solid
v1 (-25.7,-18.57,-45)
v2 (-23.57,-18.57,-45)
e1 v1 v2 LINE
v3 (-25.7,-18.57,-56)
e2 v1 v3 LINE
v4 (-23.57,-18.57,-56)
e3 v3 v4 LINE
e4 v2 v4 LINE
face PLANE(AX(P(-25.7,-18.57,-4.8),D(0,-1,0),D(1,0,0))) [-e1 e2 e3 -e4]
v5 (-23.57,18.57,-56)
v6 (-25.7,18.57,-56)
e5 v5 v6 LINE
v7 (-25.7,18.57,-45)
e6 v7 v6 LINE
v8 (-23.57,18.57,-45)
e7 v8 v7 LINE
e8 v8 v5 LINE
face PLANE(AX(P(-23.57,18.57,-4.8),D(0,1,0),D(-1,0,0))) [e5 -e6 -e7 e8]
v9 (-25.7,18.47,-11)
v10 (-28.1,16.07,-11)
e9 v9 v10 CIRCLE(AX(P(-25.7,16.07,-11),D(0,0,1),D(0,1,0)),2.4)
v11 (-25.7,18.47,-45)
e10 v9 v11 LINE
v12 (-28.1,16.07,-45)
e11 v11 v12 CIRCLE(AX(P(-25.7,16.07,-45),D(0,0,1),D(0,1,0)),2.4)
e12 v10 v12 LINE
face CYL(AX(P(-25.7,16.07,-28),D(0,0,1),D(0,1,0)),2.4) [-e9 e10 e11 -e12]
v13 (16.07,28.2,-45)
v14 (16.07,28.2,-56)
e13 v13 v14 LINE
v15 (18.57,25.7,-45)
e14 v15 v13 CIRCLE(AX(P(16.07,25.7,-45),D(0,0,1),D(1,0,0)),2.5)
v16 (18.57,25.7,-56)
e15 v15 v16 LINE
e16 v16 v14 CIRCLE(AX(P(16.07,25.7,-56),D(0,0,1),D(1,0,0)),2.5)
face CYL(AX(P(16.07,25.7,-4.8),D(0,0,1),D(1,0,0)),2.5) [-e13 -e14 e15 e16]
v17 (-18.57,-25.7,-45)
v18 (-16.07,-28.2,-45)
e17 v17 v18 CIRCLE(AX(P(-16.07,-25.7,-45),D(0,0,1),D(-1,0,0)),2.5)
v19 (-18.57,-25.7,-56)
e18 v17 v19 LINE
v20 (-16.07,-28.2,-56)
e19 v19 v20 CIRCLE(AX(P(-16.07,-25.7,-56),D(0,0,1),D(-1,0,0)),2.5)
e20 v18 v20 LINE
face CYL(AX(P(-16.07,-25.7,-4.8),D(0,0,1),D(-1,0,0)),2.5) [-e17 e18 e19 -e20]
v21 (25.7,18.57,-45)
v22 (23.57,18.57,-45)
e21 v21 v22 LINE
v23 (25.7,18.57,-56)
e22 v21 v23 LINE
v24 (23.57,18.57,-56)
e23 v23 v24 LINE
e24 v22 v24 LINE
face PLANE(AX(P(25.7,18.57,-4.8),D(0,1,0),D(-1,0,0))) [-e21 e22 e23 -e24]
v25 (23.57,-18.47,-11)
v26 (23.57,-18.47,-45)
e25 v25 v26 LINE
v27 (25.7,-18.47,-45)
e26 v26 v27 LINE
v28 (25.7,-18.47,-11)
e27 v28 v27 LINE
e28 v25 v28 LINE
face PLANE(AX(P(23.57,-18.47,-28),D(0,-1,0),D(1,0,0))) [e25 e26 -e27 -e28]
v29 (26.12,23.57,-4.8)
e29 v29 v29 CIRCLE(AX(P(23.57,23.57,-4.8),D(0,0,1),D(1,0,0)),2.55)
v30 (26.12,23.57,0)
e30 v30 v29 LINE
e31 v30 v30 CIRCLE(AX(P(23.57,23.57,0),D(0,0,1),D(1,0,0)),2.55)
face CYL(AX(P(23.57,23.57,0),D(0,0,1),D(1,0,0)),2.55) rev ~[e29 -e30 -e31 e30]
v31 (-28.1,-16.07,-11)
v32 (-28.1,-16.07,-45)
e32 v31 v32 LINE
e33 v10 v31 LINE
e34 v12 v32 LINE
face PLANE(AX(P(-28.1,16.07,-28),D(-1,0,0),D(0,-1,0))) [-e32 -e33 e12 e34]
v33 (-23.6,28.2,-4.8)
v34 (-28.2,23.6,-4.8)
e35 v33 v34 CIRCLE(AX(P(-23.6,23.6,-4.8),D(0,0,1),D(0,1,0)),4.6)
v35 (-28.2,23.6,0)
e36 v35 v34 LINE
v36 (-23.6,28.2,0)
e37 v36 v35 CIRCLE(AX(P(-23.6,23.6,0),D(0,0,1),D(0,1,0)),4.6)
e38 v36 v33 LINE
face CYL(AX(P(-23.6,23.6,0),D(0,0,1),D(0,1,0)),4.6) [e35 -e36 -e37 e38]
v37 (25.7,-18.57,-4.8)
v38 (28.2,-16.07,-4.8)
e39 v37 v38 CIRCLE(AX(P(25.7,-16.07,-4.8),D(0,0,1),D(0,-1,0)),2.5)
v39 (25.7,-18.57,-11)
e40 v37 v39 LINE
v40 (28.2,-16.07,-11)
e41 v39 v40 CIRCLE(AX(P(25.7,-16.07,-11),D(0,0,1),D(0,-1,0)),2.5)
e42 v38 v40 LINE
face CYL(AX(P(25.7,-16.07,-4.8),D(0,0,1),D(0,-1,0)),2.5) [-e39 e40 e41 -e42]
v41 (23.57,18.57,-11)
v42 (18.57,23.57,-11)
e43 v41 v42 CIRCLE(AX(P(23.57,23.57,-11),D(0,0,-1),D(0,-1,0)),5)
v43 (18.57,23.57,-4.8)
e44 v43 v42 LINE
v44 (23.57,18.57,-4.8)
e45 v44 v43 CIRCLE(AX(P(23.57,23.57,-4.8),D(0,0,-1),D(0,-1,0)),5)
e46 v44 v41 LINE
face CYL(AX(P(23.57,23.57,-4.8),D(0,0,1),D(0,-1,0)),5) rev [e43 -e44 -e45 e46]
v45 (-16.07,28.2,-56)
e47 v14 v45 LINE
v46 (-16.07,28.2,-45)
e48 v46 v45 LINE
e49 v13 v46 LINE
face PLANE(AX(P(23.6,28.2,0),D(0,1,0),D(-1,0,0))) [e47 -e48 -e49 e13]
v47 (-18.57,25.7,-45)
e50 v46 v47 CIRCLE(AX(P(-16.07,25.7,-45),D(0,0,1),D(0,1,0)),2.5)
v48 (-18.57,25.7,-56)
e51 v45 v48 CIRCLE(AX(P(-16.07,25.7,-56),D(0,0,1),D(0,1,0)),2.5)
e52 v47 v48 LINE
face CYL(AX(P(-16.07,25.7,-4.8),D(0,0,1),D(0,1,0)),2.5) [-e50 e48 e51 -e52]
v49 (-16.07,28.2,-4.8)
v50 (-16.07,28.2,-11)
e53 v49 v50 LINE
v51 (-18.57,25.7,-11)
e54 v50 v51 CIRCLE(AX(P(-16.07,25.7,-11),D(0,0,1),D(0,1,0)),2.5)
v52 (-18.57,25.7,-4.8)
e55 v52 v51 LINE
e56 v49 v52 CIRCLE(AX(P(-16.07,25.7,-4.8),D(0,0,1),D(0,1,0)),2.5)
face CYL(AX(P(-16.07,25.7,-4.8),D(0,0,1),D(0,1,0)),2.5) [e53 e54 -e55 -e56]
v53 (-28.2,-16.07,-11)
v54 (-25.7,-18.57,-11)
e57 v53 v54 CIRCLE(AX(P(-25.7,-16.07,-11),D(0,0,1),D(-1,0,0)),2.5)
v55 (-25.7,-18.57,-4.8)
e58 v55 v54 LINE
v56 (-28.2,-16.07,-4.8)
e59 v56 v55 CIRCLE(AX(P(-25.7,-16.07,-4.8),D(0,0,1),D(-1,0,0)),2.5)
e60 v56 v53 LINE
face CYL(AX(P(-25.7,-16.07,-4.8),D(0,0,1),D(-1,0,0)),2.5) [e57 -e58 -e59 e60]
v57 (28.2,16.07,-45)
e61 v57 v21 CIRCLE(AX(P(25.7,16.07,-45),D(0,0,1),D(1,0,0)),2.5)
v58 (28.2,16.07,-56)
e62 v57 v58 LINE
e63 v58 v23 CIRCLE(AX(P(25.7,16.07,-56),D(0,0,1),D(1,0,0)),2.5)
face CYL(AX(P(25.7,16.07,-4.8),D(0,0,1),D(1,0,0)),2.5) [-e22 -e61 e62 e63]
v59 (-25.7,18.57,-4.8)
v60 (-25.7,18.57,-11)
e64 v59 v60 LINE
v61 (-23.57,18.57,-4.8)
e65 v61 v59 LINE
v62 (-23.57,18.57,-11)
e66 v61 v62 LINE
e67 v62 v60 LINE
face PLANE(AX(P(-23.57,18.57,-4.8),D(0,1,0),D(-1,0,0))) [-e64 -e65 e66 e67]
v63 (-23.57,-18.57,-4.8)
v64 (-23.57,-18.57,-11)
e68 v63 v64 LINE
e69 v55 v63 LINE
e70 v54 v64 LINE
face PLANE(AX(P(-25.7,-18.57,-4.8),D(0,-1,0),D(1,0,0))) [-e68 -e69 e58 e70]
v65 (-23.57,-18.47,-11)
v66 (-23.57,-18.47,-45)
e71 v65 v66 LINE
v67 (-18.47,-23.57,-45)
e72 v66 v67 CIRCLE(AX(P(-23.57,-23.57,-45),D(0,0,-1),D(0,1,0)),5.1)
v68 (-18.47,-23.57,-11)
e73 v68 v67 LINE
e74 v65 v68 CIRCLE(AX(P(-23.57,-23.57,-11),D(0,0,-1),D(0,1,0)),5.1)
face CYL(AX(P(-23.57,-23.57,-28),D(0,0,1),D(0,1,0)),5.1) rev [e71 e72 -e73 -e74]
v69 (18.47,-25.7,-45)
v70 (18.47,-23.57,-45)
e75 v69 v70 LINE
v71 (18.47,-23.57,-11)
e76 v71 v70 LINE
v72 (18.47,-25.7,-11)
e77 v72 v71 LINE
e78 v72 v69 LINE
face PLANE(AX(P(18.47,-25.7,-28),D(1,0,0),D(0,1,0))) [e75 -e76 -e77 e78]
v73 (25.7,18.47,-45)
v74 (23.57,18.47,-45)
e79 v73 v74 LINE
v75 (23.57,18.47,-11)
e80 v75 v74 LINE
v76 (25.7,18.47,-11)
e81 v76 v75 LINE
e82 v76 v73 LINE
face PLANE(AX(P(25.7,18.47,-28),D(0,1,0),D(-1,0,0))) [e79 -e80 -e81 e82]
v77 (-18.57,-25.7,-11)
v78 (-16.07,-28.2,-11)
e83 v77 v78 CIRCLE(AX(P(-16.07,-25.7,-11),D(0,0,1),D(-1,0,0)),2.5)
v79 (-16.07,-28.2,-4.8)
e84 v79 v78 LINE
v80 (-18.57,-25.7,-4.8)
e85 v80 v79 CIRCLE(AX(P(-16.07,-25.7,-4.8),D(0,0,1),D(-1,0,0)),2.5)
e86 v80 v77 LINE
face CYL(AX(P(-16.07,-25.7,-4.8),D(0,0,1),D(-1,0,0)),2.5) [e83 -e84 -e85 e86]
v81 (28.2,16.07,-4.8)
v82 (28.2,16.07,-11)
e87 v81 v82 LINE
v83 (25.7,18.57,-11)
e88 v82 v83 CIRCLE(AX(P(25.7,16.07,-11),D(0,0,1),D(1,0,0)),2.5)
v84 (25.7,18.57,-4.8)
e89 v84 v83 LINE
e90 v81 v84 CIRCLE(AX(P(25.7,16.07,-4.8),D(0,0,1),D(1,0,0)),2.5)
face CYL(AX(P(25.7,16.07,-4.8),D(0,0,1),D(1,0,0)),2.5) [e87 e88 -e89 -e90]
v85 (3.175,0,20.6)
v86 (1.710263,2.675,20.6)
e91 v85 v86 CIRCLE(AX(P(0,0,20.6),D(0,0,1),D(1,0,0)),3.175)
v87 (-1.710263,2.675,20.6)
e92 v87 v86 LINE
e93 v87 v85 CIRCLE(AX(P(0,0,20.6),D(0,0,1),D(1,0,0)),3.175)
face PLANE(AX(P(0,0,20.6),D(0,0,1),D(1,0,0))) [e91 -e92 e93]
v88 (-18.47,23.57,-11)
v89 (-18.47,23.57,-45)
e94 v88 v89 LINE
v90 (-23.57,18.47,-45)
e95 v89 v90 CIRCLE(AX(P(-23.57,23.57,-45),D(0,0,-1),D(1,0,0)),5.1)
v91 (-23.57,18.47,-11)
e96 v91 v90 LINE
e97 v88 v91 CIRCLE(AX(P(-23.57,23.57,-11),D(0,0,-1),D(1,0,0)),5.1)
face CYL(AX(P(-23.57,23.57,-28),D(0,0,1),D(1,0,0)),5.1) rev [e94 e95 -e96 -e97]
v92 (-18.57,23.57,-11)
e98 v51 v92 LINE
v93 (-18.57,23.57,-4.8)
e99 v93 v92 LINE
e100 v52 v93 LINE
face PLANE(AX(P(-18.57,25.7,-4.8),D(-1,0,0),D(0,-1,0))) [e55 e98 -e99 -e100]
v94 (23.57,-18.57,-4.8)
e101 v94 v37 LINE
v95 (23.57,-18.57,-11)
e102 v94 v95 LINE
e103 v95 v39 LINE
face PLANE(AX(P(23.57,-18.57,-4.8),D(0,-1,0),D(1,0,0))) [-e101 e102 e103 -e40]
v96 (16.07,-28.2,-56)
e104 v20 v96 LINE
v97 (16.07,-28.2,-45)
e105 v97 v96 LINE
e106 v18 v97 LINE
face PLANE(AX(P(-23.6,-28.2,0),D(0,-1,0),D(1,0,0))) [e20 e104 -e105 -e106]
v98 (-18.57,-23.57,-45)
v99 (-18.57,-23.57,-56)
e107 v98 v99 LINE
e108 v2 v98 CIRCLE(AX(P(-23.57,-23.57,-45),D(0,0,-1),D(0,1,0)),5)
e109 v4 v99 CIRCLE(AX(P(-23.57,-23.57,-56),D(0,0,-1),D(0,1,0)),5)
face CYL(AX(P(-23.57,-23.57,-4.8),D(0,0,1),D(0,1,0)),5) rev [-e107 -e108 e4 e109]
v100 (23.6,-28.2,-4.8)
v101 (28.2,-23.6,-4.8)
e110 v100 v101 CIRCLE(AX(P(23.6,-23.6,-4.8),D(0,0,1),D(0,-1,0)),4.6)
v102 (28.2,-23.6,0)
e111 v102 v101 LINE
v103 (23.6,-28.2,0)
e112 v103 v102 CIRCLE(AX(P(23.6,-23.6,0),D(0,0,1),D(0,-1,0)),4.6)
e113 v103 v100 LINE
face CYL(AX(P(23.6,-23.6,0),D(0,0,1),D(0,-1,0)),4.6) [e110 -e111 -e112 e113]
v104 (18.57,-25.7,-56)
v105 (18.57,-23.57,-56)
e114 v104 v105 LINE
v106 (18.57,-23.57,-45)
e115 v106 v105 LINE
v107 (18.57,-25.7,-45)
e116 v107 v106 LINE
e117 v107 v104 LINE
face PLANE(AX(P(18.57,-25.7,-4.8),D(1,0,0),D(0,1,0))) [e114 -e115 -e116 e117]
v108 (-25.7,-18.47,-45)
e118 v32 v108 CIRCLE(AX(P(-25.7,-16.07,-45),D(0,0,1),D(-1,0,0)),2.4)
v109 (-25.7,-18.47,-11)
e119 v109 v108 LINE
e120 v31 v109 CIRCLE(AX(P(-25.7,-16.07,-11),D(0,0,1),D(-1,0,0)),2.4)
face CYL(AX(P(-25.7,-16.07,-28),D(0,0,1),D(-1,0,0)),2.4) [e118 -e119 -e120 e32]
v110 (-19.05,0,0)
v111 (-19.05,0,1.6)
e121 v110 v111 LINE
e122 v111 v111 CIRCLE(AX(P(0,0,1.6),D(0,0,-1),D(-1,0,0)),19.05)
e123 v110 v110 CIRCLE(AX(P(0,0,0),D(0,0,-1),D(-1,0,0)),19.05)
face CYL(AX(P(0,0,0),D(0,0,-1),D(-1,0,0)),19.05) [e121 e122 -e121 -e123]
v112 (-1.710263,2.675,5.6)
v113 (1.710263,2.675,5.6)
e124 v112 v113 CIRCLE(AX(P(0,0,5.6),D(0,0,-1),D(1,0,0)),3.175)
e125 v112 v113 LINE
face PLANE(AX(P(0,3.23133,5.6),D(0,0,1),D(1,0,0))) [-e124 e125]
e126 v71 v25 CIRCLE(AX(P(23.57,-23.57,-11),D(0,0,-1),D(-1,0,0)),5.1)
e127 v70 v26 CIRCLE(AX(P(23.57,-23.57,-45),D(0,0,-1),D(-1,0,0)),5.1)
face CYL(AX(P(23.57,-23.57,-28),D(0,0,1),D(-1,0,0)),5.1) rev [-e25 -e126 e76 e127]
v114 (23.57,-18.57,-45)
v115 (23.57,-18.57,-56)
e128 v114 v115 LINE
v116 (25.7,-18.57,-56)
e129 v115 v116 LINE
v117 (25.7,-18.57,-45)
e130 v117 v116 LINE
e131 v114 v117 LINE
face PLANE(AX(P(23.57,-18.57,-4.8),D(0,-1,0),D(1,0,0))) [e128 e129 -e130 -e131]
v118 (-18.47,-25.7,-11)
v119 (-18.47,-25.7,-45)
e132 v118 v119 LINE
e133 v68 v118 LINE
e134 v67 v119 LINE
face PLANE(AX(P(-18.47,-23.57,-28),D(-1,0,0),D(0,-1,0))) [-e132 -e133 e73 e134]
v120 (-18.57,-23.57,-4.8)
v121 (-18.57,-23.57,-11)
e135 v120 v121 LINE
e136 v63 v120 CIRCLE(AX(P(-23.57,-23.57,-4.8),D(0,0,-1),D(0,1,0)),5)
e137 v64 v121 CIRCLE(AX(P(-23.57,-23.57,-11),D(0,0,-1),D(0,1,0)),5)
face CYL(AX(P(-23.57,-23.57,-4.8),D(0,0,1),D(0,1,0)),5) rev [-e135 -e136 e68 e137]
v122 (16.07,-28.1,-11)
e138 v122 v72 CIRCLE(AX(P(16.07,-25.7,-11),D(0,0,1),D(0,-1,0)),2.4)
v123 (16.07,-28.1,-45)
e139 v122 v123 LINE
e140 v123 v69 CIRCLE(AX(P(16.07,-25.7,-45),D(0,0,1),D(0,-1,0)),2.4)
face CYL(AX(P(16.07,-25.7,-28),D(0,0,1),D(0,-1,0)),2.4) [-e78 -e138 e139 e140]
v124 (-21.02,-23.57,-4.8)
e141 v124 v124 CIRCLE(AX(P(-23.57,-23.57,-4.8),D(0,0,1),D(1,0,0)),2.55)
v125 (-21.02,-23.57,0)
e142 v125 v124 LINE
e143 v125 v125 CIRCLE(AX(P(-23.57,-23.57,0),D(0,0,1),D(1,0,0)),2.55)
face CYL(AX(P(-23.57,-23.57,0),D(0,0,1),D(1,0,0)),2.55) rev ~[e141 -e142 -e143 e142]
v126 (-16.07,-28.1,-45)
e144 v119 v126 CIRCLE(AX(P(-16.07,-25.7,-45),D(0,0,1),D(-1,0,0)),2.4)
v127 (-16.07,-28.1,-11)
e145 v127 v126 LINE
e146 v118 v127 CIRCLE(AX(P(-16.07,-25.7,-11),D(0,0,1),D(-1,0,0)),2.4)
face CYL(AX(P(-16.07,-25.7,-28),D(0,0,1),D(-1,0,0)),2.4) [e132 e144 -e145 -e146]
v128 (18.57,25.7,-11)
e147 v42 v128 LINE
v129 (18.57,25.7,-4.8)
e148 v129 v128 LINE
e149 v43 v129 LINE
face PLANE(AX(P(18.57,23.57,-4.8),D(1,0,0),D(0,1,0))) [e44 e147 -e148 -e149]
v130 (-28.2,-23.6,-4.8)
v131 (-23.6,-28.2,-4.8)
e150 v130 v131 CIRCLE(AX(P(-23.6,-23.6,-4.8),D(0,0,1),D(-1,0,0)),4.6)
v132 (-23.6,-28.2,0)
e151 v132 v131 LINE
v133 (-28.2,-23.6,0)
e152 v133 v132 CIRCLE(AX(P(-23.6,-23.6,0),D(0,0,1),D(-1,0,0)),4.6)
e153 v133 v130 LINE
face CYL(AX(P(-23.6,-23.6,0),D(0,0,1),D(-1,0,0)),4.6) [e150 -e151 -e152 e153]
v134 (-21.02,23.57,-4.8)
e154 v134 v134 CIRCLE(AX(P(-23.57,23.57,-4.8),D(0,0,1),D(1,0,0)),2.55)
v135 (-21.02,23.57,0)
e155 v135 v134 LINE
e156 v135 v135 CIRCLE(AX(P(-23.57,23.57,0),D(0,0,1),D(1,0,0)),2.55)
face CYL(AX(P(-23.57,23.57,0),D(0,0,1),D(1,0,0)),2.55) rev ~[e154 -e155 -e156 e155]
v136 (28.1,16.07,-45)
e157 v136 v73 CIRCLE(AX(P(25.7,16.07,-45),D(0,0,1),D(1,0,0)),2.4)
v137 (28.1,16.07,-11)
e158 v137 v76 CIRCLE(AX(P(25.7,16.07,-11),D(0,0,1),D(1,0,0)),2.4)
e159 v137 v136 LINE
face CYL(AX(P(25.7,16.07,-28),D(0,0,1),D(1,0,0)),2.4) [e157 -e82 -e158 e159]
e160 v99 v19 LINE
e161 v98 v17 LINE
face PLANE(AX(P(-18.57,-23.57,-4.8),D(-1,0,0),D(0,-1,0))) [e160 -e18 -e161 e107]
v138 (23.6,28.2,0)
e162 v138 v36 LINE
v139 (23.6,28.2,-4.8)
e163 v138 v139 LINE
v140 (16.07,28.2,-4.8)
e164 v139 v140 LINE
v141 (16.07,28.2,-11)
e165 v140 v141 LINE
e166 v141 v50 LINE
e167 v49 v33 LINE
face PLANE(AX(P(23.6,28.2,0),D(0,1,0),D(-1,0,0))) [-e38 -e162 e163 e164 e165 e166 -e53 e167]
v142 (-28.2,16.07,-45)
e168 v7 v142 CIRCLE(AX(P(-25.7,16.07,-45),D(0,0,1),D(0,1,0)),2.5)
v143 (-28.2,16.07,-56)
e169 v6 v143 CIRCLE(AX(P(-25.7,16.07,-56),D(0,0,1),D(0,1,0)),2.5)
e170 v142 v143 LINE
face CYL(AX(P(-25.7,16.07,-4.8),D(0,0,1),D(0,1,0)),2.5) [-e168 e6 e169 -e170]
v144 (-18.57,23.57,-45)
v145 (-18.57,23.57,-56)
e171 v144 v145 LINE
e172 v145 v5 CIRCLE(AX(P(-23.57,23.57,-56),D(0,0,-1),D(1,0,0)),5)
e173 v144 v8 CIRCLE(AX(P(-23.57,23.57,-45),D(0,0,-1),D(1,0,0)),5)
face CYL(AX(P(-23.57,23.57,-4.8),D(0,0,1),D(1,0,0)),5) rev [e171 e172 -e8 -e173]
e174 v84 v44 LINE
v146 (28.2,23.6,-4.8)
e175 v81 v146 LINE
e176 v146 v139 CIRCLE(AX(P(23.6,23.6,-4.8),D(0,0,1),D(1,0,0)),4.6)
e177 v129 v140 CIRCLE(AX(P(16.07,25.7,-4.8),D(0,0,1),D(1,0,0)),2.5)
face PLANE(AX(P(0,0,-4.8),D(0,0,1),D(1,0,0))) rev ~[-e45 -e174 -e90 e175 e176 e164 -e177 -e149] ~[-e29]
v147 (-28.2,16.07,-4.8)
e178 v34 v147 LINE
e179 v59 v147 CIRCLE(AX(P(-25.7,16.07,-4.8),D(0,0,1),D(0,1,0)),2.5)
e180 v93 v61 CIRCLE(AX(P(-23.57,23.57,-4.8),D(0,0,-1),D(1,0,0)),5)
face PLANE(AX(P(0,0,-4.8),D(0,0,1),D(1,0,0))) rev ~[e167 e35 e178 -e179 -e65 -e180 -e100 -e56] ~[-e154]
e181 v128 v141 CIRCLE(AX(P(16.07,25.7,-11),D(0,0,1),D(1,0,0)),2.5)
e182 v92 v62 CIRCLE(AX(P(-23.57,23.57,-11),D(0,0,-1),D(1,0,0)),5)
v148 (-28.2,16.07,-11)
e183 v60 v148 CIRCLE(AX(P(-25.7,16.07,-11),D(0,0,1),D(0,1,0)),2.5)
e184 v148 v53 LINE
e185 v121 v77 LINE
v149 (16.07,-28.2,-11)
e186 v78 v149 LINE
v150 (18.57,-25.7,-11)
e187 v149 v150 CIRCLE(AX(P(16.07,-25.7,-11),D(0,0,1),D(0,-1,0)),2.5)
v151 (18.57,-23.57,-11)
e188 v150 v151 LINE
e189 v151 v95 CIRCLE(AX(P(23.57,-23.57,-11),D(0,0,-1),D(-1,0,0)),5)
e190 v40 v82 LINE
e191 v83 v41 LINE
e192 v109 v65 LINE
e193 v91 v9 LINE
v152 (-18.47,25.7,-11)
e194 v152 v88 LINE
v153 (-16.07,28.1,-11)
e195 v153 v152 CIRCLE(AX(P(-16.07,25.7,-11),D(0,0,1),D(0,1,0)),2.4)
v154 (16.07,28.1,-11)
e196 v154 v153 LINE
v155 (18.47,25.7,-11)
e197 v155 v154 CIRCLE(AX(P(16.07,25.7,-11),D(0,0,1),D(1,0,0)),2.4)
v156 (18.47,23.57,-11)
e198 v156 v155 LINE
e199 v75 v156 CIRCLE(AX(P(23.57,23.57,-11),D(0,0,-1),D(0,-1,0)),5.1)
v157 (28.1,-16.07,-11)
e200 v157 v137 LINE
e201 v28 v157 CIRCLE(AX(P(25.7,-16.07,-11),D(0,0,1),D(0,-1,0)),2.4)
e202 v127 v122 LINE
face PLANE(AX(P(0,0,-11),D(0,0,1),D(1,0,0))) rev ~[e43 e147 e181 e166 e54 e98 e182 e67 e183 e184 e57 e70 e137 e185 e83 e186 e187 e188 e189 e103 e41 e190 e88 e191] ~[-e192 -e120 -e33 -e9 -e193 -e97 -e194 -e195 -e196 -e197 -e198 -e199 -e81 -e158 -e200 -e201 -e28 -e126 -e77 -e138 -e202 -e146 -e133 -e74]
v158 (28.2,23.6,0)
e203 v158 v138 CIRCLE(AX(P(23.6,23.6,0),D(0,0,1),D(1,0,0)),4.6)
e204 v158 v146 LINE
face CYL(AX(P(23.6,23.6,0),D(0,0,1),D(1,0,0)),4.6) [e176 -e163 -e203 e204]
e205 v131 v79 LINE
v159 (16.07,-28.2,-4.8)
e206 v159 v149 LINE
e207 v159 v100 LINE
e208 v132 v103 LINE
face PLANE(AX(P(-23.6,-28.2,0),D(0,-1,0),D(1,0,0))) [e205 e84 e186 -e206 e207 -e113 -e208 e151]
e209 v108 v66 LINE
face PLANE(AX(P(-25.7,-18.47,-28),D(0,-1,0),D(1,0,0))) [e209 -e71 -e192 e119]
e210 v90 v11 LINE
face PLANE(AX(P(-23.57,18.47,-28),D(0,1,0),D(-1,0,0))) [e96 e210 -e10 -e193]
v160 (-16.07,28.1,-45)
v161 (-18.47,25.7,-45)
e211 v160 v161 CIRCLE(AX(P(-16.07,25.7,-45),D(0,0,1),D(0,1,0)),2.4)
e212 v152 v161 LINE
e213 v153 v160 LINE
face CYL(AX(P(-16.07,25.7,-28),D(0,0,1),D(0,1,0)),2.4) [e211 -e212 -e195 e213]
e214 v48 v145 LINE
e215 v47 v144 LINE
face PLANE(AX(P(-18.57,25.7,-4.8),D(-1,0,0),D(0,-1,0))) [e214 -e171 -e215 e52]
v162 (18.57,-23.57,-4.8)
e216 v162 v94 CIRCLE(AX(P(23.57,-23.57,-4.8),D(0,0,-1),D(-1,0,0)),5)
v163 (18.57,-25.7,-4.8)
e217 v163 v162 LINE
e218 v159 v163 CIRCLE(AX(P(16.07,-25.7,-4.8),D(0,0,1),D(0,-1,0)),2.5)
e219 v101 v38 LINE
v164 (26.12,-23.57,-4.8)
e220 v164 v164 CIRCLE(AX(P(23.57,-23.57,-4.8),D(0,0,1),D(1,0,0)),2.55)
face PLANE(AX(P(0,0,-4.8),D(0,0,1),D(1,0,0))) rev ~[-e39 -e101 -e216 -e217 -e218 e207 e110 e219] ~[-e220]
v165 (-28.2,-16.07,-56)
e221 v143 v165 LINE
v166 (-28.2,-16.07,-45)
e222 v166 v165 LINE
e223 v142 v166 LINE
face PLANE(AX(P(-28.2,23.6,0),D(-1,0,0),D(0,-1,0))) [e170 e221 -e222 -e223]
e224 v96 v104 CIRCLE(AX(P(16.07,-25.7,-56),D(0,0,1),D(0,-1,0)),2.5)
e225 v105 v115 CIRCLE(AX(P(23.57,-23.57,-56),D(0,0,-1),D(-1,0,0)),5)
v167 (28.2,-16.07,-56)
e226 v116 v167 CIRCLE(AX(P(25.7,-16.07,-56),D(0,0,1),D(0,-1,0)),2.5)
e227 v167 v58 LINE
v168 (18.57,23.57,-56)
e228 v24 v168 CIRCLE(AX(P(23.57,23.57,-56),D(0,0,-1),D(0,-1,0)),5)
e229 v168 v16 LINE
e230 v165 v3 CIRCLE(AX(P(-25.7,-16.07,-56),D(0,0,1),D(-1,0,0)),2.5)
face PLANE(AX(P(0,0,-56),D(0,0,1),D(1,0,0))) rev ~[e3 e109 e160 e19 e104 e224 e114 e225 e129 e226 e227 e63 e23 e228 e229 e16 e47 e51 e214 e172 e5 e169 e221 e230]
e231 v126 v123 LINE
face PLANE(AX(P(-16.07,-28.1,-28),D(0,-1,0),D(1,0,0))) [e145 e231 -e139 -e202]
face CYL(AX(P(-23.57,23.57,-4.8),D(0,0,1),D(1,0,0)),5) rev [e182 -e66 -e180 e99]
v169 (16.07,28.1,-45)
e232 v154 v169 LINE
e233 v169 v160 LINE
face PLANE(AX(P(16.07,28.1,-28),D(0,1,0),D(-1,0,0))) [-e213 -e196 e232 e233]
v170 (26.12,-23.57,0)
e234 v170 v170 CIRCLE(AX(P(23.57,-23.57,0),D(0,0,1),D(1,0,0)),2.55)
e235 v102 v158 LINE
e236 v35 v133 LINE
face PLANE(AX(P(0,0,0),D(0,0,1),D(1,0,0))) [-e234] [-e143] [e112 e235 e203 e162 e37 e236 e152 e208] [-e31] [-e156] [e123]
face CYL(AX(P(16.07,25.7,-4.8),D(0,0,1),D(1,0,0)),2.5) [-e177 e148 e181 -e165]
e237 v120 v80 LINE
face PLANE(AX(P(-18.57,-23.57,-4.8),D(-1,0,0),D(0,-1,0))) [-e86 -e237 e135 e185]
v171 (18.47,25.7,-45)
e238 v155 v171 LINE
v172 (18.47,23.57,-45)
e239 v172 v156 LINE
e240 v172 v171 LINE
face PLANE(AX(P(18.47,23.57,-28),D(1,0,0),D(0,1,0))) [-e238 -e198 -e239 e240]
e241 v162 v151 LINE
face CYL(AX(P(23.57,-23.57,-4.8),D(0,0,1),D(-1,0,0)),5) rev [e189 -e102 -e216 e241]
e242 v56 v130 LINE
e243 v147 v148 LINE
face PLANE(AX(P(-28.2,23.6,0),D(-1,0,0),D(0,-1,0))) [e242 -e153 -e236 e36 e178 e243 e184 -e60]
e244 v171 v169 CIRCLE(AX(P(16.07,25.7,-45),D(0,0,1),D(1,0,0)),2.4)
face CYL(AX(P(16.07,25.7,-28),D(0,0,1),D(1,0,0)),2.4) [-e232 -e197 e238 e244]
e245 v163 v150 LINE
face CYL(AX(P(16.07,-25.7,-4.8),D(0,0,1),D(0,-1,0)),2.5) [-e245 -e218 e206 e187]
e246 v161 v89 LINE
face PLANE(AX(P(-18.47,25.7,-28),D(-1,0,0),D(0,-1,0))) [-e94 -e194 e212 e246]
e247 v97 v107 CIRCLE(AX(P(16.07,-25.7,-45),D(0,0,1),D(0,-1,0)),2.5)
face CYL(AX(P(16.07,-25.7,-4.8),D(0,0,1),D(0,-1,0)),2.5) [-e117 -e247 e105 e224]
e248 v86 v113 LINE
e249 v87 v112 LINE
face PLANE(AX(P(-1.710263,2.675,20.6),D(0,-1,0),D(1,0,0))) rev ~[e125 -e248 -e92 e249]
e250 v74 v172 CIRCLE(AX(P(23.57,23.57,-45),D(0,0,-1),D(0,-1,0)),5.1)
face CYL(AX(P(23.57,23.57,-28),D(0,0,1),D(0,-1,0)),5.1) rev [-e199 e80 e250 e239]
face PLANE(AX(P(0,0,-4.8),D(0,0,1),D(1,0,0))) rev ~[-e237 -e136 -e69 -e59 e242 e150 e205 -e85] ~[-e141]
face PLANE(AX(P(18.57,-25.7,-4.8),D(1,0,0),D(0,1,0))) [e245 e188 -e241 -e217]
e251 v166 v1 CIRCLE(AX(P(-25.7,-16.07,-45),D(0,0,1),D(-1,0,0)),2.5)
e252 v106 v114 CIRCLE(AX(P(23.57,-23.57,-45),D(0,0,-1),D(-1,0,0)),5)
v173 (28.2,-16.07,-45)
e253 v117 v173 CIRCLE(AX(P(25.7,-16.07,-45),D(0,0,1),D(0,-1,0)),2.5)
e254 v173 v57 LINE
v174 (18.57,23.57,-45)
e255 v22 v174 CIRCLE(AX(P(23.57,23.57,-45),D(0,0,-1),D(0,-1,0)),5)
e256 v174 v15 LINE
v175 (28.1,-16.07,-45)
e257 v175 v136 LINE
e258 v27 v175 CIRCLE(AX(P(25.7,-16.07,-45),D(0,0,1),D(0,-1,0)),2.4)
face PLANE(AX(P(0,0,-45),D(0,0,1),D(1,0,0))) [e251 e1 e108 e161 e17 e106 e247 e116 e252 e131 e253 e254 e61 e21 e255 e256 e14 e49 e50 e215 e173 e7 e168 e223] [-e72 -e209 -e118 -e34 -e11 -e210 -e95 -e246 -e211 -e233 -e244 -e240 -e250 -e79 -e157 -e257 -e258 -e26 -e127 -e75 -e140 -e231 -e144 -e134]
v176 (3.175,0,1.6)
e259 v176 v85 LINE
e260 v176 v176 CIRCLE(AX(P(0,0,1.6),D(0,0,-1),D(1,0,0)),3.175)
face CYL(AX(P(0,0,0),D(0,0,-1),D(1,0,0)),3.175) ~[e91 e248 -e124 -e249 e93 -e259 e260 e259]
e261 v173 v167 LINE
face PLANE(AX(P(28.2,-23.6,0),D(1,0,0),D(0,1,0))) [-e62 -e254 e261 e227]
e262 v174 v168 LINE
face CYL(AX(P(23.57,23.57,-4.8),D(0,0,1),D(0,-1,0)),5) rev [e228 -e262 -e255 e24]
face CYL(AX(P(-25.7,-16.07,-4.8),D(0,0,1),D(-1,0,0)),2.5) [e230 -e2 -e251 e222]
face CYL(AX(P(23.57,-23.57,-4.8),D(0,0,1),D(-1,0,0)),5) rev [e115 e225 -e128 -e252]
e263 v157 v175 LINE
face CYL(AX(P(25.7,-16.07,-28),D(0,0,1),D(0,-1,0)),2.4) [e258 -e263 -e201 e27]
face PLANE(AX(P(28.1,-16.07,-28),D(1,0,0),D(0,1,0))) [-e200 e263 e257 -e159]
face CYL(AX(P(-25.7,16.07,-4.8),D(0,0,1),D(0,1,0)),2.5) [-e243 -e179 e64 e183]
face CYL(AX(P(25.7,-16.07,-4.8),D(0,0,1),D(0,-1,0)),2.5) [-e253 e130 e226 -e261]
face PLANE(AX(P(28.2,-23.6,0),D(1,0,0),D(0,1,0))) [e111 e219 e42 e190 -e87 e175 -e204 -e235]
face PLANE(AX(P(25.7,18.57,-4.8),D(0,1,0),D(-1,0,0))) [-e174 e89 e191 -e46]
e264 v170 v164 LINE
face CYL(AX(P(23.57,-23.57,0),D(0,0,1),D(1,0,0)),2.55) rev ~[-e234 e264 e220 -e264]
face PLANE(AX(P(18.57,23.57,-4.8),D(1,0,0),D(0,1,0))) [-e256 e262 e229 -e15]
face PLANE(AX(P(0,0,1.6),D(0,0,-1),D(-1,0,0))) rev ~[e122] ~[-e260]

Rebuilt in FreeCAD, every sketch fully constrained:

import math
import FreeCAD as App
import Part
import Sketcher
Q = App.Units.Quantity

doc = App.newDocument("Part")
body = doc.addObject("PartDesign::Body", "Body")

# Sketch on XY plane
sketch1 = body.newObject("Sketcher::SketchObject", "Sketch")
sketch1.AttachmentSupport = (doc.getObject("XY_Plane"), [""])
sketch1.MapMode = "FlatFace"
sketch1.addGeometry(Part.Circle(App.Vector(0, 0, 0), App.Vector(0, 0, 1), 3.2), False)
sketch1.addConstraint([
    Sketcher.Constraint("Coincident", 0, 3, -1, 1),
    Sketcher.Constraint("Diameter", 0, Q("6.35 mm")),
])
pad1 = body.newObject("PartDesign::Pad", "Pad")
pad1.Profile = sketch1
pad1.Length = 20.6

# Sketch on XY plane
sketch2 = body.newObject("Sketcher::SketchObject", "Sketch001")
sketch2.AttachmentSupport = (doc.getObject("XY_Plane"), [""])
sketch2.MapMode = "FlatFace"
sketch2.addGeometry(Part.Circle(App.Vector(0, 0, 0), App.Vector(0, 0, 1), 19), False)
sketch2.addConstraint([
    Sketcher.Constraint("Coincident", 0, 3, -1, 1),
    Sketcher.Constraint("Diameter", 0, Q("38.1 mm")),
])
pad2 = body.newObject("PartDesign::Pad", "Pad001")
pad2.Profile = sketch2
pad2.Length = 1.6

# Sketch on XY plane
sketch3 = body.newObject("Sketcher::SketchObject", "Sketch002")
sketch3.AttachmentSupport = (doc.getObject("XY_Plane"), [""])
sketch3.MapMode = "FlatFace"
sketch3.addGeometry([
    Part.LineSegment(App.Vector(23.6, -28.2, 0), App.Vector(-23.6, -28.2, 0)),  # 0
    Part.ArcOfCircle(Part.Circle(App.Vector(-23.6, -23.6, 0), App.Vector(0, 0, 1), 4.6), math.radians(-180), math.radians(-90)),  # 1
    Part.LineSegment(App.Vector(-28.2, -23.6, 0), App.Vector(-28.2, 23.6, 0)),  # 2
    Part.ArcOfCircle(Part.Circle(App.Vector(-23.6, 23.6, 0), App.Vector(0, 0, 1), 4.6), math.radians(90), math.radians(180)),  # 3
    Part.LineSegment(App.Vector(-23.6, 28.2, 0), App.Vector(23.6, 28.2, 0)),  # 4
    Part.ArcOfCircle(Part.Circle(App.Vector(23.6, 23.6, 0), App.Vector(0, 0, 1), 4.6), math.radians(0), math.radians(90)),  # 5
    Part.LineSegment(App.Vector(28.2, 23.6, 0), App.Vector(28.2, -23.6, 0)),  # 6
    Part.ArcOfCircle(Part.Circle(App.Vector(23.6, -23.6, 0), App.Vector(0, 0, 1), 4.6), math.radians(-90), math.radians(0)),  # 7
], False)
sketch3.addConstraint([
    Sketcher.Constraint("Tangent", 0, 2, 1, 2),
    Sketcher.Constraint("Tangent", 1, 1, 2, 1),
    Sketcher.Constraint("Tangent", 2, 2, 3, 2),
    Sketcher.Constraint("Tangent", 3, 1, 4, 1),
    Sketcher.Constraint("Tangent", 4, 2, 5, 2),
    Sketcher.Constraint("Tangent", 5, 1, 6, 1),
    Sketcher.Constraint("Tangent", 6, 2, 7, 2),
    Sketcher.Constraint("Tangent", 7, 1, 0, 1),
    Sketcher.Constraint("Horizontal", 0),
    Sketcher.Constraint("Vertical", 2),
    Sketcher.Constraint("Horizontal", 4),
    Sketcher.Constraint("Vertical", 6),
    Sketcher.Constraint("Equal", 1, 3),
    Sketcher.Constraint("Equal", 3, 5),
    Sketcher.Constraint("Equal", 5, 7),
    Sketcher.Constraint("Symmetric", 1, 3, 5, 3, -1, 1),
    Sketcher.Constraint("Equal", 4, 2),
    Sketcher.Constraint("Radius", 1, Q("4.6 mm")),
    Sketcher.Constraint("DistanceX", 0, 2, 0, 1, Q("47.2 mm")),
])
pad3 = body.newObject("PartDesign::Pad", "Pad002")
pad3.Profile = sketch3
pad3.Length = 4.8
pad3.Reversed = True

# Sketch on XY plane
sketch4 = body.newObject("Sketcher::SketchObject", "Sketch003")
sketch4.AttachmentSupport = (doc.getObject("XY_Plane"), [""])
sketch4.MapMode = "FlatFace"
sketch4.AttachmentOffset = App.Placement(App.Vector(0, 0, -4.8), App.Rotation())
sketch4.addGeometry([
    Part.LineSegment(App.Vector(18.6, 25.7, 0), App.Vector(18.6, 23.6, 0)),  # 0
    Part.ArcOfCircle(Part.Circle(App.Vector(23.6, 23.6, 0), App.Vector(0, 0, 1), 5), math.radians(180), math.radians(270)),  # 1
    Part.LineSegment(App.Vector(23.6, 18.6, 0), App.Vector(25.7, 18.6, 0)),  # 2
    Part.ArcOfCircle(Part.Circle(App.Vector(25.7, 16.1, 0), App.Vector(0, 0, 1), 2.5), math.radians(0), math.radians(90)),  # 3
    Part.LineSegment(App.Vector(28.2, 16.1, 0), App.Vector(28.2, -16.1, 0)),  # 4
    Part.ArcOfCircle(Part.Circle(App.Vector(25.7, -16.1, 0), App.Vector(0, 0, 1), 2.5), math.radians(-90), math.radians(0)),  # 5
    Part.LineSegment(App.Vector(25.7, -18.6, 0), App.Vector(23.6, -18.6, 0)),  # 6
    Part.ArcOfCircle(Part.Circle(App.Vector(23.6, -23.6, 0), App.Vector(0, 0, 1), 5), math.radians(90), math.radians(180)),  # 7
    Part.LineSegment(App.Vector(18.6, -23.6, 0), App.Vector(18.6, -25.7, 0)),  # 8
    Part.ArcOfCircle(Part.Circle(App.Vector(16.1, -25.7, 0), App.Vector(0, 0, 1), 2.5), math.radians(-90), math.radians(0)),  # 9
    Part.LineSegment(App.Vector(16.1, -28.2, 0), App.Vector(-16.1, -28.2, 0)),  # 10
    Part.ArcOfCircle(Part.Circle(App.Vector(-16.1, -25.7, 0), App.Vector(0, 0, 1), 2.5), math.radians(180), math.radians(270)),  # 11
    Part.LineSegment(App.Vector(-18.6, -25.7, 0), App.Vector(-18.6, -23.6, 0)),  # 12
    Part.ArcOfCircle(Part.Circle(App.Vector(-23.6, -23.6, 0), App.Vector(0, 0, 1), 5), math.radians(0), math.radians(90)),  # 13
    Part.LineSegment(App.Vector(-23.6, -18.6, 0), App.Vector(-25.7, -18.6, 0)),  # 14
    Part.ArcOfCircle(Part.Circle(App.Vector(-25.7, -16.1, 0), App.Vector(0, 0, 1), 2.5), math.radians(180), math.radians(270)),  # 15
    Part.LineSegment(App.Vector(-28.2, -16.1, 0), App.Vector(-28.2, 16.1, 0)),  # 16
    Part.ArcOfCircle(Part.Circle(App.Vector(-25.7, 16.1, 0), App.Vector(0, 0, 1), 2.5), math.radians(90), math.radians(180)),  # 17
    Part.LineSegment(App.Vector(-25.7, 18.6, 0), App.Vector(-23.6, 18.6, 0)),  # 18
    Part.ArcOfCircle(Part.Circle(App.Vector(-23.6, 23.6, 0), App.Vector(0, 0, 1), 5), math.radians(-90), math.radians(0)),  # 19
    Part.LineSegment(App.Vector(-18.6, 23.6, 0), App.Vector(-18.6, 25.7, 0)),  # 20
    Part.ArcOfCircle(Part.Circle(App.Vector(-16.1, 25.7, 0), App.Vector(0, 0, 1), 2.5), math.radians(90), math.radians(180)),  # 21
    Part.LineSegment(App.Vector(-16.1, 28.2, 0), App.Vector(16.1, 28.2, 0)),  # 22
    Part.ArcOfCircle(Part.Circle(App.Vector(16.1, 25.7, 0), App.Vector(0, 0, 1), 2.5), math.radians(0), math.radians(90)),  # 23
], False)
sketch4.addConstraint([
    Sketcher.Constraint("Tangent", 0, 2, 1, 1),
    Sketcher.Constraint("Tangent", 1, 2, 2, 1),
    Sketcher.Constraint("Tangent", 2, 2, 3, 2),
    Sketcher.Constraint("Tangent", 3, 1, 4, 1),
    Sketcher.Constraint("Tangent", 4, 2, 5, 2),
    Sketcher.Constraint("Tangent", 5, 1, 6, 1),
    Sketcher.Constraint("Tangent", 6, 2, 7, 1),
    Sketcher.Constraint("Tangent", 7, 2, 8, 1),
    Sketcher.Constraint("Tangent", 8, 2, 9, 2),
    Sketcher.Constraint("Tangent", 9, 1, 10, 1),
    Sketcher.Constraint("Tangent", 10, 2, 11, 2),
    Sketcher.Constraint("Tangent", 11, 1, 12, 1),
    Sketcher.Constraint("Tangent", 12, 2, 13, 1),
    Sketcher.Constraint("Tangent", 13, 2, 14, 1),
    Sketcher.Constraint("Tangent", 14, 2, 15, 2),
    Sketcher.Constraint("Tangent", 15, 1, 16, 1),
    Sketcher.Constraint("Tangent", 16, 2, 17, 2),
    Sketcher.Constraint("Tangent", 17, 1, 18, 1),
    Sketcher.Constraint("Tangent", 18, 2, 19, 1),
    Sketcher.Constraint("Tangent", 19, 2, 20, 1),
    Sketcher.Constraint("Tangent", 20, 2, 21, 2),
    Sketcher.Constraint("Tangent", 21, 1, 22, 1),
    Sketcher.Constraint("Tangent", 22, 2, 23, 2),
    Sketcher.Constraint("Tangent", 23, 1, 0, 1),
    Sketcher.Constraint("Vertical", 0),
    Sketcher.Constraint("Horizontal", 2),
    Sketcher.Constraint("Vertical", 4),
    Sketcher.Constraint("Horizontal", 6),
    Sketcher.Constraint("Vertical", 8),
    Sketcher.Constraint("Horizontal", 10),
    Sketcher.Constraint("Vertical", 12),
    Sketcher.Constraint("Horizontal", 14),
    Sketcher.Constraint("Vertical", 16),
    Sketcher.Constraint("Horizontal", 18),
    Sketcher.Constraint("Vertical", 20),
    Sketcher.Constraint("Horizontal", 22),
    Sketcher.Constraint("Equal", 3, 5),
    Sketcher.Constraint("Equal", 1, 7),
    Sketcher.Constraint("Equal", 5, 9),
    Sketcher.Constraint("Equal", 9, 11),
    Sketcher.Constraint("Equal", 7, 13),
    Sketcher.Constraint("Equal", 11, 15),
    Sketcher.Constraint("Equal", 15, 17),
    Sketcher.Constraint("Equal", 13, 19),
    Sketcher.Constraint("Equal", 17, 21),
    Sketcher.Constraint("Equal", 21, 23),
    Sketcher.Constraint("Symmetric", 1, 3, 13, 3, -1, 1),
    Sketcher.Constraint("Symmetric", 5, 3, 17, 3, -1, 1),
    Sketcher.Constraint("Symmetric", 9, 3, 21, 3, -1, 1),
    Sketcher.Constraint("Symmetric", 7, 3, 13, 3, -2),
    Sketcher.Constraint("Equal", 18, 0),
    Sketcher.Constraint("Equal", 22, 4),
    Sketcher.Constraint("Radius", 1, Q("5 mm")),
    Sketcher.Constraint("Radius", 3, Q("2.5 mm")),
    Sketcher.Constraint("DistanceX", 2, 1, 2, 2, Q("2.13 mm")),
    Sketcher.Constraint("DistanceX", 10, 2, 10, 1, Q("32.14 mm")),
])
pad4 = body.newObject("PartDesign::Pad", "Pad003")
pad4.Profile = sketch4
pad4.Length = 51.2
pad4.Reversed = True

# Sketch on XY plane
sketch5 = body.newObject("Sketcher::SketchObject", "Sketch004")
sketch5.AttachmentSupport = (doc.getObject("XY_Plane"), [""])
sketch5.MapMode = "FlatFace"
sketch5.AttachmentOffset = App.Placement(App.Vector(0, 0, 20.6), App.Rotation())
sketch5.addGeometry([
    Part.LineSegment(App.Vector(-1.7, 3.8, 0), App.Vector(-1.7, 2.7, 0)),
    Part.LineSegment(App.Vector(-1.7, 2.7, 0), App.Vector(1.7, 2.7, 0)),
    Part.LineSegment(App.Vector(1.7, 2.7, 0), App.Vector(1.7, 3.8, 0)),
    Part.LineSegment(App.Vector(1.7, 3.8, 0), App.Vector(-1.7, 3.8, 0)),
], False)
sketch5.addConstraint([
    Sketcher.Constraint("Coincident", 0, 2, 1, 1),
    Sketcher.Constraint("Coincident", 1, 2, 2, 1),
    Sketcher.Constraint("Coincident", 2, 2, 3, 1),
    Sketcher.Constraint("Coincident", 3, 2, 0, 1),
    Sketcher.Constraint("Vertical", 0),
    Sketcher.Constraint("Horizontal", 1),
    Sketcher.Constraint("Vertical", 2),
    Sketcher.Constraint("Horizontal", 3),
    Sketcher.Constraint("DistanceY", -1, 1, 0, 2, Q("2.675 mm")),
    Sketcher.Constraint("DistanceY", 0, 2, 0, 1, Q("1.112659 mm")),
    Sketcher.Constraint("DistanceX", 1, 1, 1, 2, Q("3.420526 mm")),
    Sketcher.Constraint("DistanceX", 0, 2, -1, 1, Q("1.710263 mm")),
])
pocket1 = body.newObject("PartDesign::Pocket", "Pocket")
pocket1.Profile = sketch5
pocket1.Length = 15

# Sketch on XY plane
sketch6 = body.newObject("Sketcher::SketchObject", "Sketch005")
sketch6.AttachmentSupport = (doc.getObject("XY_Plane"), [""])
sketch6.MapMode = "FlatFace"
sketch6.addGeometry(Part.Circle(App.Vector(-23.6, 23.6, 0), App.Vector(0, 0, 1), 2.5), False)
sketch6.addConstraint([
    Sketcher.Constraint("Diameter", 0, Q("5.1 mm")),
    Sketcher.Constraint("DistanceX", 0, 3, -1, 1, Q("23.57 mm")),
    Sketcher.Constraint("DistanceY", -1, 1, 0, 3, Q("23.57 mm")),
])
pocket2 = body.newObject("PartDesign::Pocket", "Pocket001")
pocket2.Profile = sketch6
pocket2.Type = "UpToFirst"

# Sketch on XY plane
sketch7 = body.newObject("Sketcher::SketchObject", "Sketch006")
sketch7.AttachmentSupport = (doc.getObject("XY_Plane"), [""])
sketch7.MapMode = "FlatFace"
sketch7.addGeometry(Part.Circle(App.Vector(23.6, 23.6, 0), App.Vector(0, 0, 1), 2.5), False)
sketch7.addConstraint([
    Sketcher.Constraint("Diameter", 0, Q("5.1 mm")),
    Sketcher.Constraint("DistanceX", -1, 1, 0, 3, Q("23.57 mm")),
    Sketcher.Constraint("DistanceY", -1, 1, 0, 3, Q("23.57 mm")),
])
pocket3 = body.newObject("PartDesign::Pocket", "Pocket002")
pocket3.Profile = sketch7
pocket3.Type = "UpToFirst"

# Sketch on XY plane
sketch8 = body.newObject("Sketcher::SketchObject", "Sketch007")
sketch8.AttachmentSupport = (doc.getObject("XY_Plane"), [""])
sketch8.MapMode = "FlatFace"
sketch8.addGeometry(Part.Circle(App.Vector(23.6, -23.6, 0), App.Vector(0, 0, 1), 2.5), False)
sketch8.addConstraint([
    Sketcher.Constraint("Diameter", 0, Q("5.1 mm")),
    Sketcher.Constraint("DistanceX", -1, 1, 0, 3, Q("23.57 mm")),
    Sketcher.Constraint("DistanceY", 0, 3, -1, 1, Q("23.57 mm")),
])
pocket4 = body.newObject("PartDesign::Pocket", "Pocket003")
pocket4.Profile = sketch8
pocket4.Type = "UpToFirst"

# Sketch on XY plane
sketch9 = body.newObject("Sketcher::SketchObject", "Sketch008")
sketch9.AttachmentSupport = (doc.getObject("XY_Plane"), [""])
sketch9.MapMode = "FlatFace"
sketch9.addGeometry(Part.Circle(App.Vector(-23.6, -23.6, 0), App.Vector(0, 0, 1), 2.5), False)
sketch9.addConstraint([
    Sketcher.Constraint("Diameter", 0, Q("5.1 mm")),
    Sketcher.Constraint("DistanceX", 0, 3, -1, 1, Q("23.57 mm")),
    Sketcher.Constraint("DistanceY", 0, 3, -1, 1, Q("23.57 mm")),
])
pocket5 = body.newObject("PartDesign::Pocket", "Pocket004")
pocket5.Profile = sketch9
pocket5.Type = "UpToFirst"

# Sketch on XY plane
sketch10 = body.newObject("Sketcher::SketchObject", "Sketch009")
sketch10.AttachmentSupport = (doc.getObject("XY_Plane"), [""])
sketch10.MapMode = "FlatFace"
sketch10.AttachmentOffset = App.Placement(App.Vector(0, 0, -28), App.Rotation())
sketch10.addGeometry([
    Part.LineSegment(App.Vector(18.6, 23.6, 0), App.Vector(18.6, 25.7, 0)),  # 0
    Part.ArcOfCircle(Part.Circle(App.Vector(16.1, 25.7, 0), App.Vector(0, 0, 1), 2.5), math.radians(0), math.radians(90)),  # 1
    Part.LineSegment(App.Vector(16.1, 28.2, 0), App.Vector(-16.1, 28.2, 0)),  # 2
    Part.ArcOfCircle(Part.Circle(App.Vector(-16.1, 25.7, 0), App.Vector(0, 0, 1), 2.5), math.radians(90), math.radians(180)),  # 3
    Part.LineSegment(App.Vector(-18.6, 25.7, 0), App.Vector(-18.6, 23.6, 0)),  # 4
    Part.ArcOfCircle(Part.Circle(App.Vector(-23.6, 23.6, 0), App.Vector(0, 0, 1), 5), math.radians(-90), math.radians(0)),  # 5
    Part.LineSegment(App.Vector(-23.6, 18.6, 0), App.Vector(-25.7, 18.6, 0)),  # 6
    Part.ArcOfCircle(Part.Circle(App.Vector(-25.7, 16.1, 0), App.Vector(0, 0, 1), 2.5), math.radians(90), math.radians(180)),  # 7
    Part.LineSegment(App.Vector(-28.2, 16.1, 0), App.Vector(-28.2, -16.1, 0)),  # 8
    Part.ArcOfCircle(Part.Circle(App.Vector(-25.7, -16.1, 0), App.Vector(0, 0, 1), 2.5), math.radians(180), math.radians(270)),  # 9
    Part.LineSegment(App.Vector(-25.7, -18.6, 0), App.Vector(-23.6, -18.6, 0)),  # 10
    Part.ArcOfCircle(Part.Circle(App.Vector(-23.6, -23.6, 0), App.Vector(0, 0, 1), 5), math.radians(0), math.radians(90)),  # 11
    Part.LineSegment(App.Vector(-18.6, -23.6, 0), App.Vector(-18.6, -25.7, 0)),  # 12
    Part.ArcOfCircle(Part.Circle(App.Vector(-16.1, -25.7, 0), App.Vector(0, 0, 1), 2.5), math.radians(180), math.radians(270)),  # 13
    Part.LineSegment(App.Vector(-16.1, -28.2, 0), App.Vector(16.1, -28.2, 0)),  # 14
    Part.ArcOfCircle(Part.Circle(App.Vector(16.1, -25.7, 0), App.Vector(0, 0, 1), 2.5), math.radians(-90), math.radians(0)),  # 15
    Part.LineSegment(App.Vector(18.6, -25.7, 0), App.Vector(18.6, -23.6, 0)),  # 16
    Part.ArcOfCircle(Part.Circle(App.Vector(23.6, -23.6, 0), App.Vector(0, 0, 1), 5), math.radians(90), math.radians(180)),  # 17
    Part.LineSegment(App.Vector(23.6, -18.6, 0), App.Vector(25.7, -18.6, 0)),  # 18
    Part.ArcOfCircle(Part.Circle(App.Vector(25.7, -16.1, 0), App.Vector(0, 0, 1), 2.5), math.radians(-90), math.radians(0)),  # 19
    Part.LineSegment(App.Vector(28.2, -16.1, 0), App.Vector(28.2, 16.1, 0)),  # 20
    Part.ArcOfCircle(Part.Circle(App.Vector(25.7, 16.1, 0), App.Vector(0, 0, 1), 2.5), math.radians(0), math.radians(90)),  # 21
    Part.LineSegment(App.Vector(25.7, 18.6, 0), App.Vector(23.6, 18.6, 0)),  # 22
    Part.ArcOfCircle(Part.Circle(App.Vector(23.6, 23.6, 0), App.Vector(0, 0, 1), 5), math.radians(180), math.radians(270)),  # 23
    Part.LineSegment(App.Vector(18.5, 25.7, 0), App.Vector(18.5, 23.6, 0)),  # 24
    Part.ArcOfCircle(Part.Circle(App.Vector(23.6, 23.6, 0), App.Vector(0, 0, 1), 5.1), math.radians(180), math.radians(270)),  # 25
    Part.LineSegment(App.Vector(23.6, 18.5, 0), App.Vector(25.7, 18.5, 0)),  # 26
    Part.ArcOfCircle(Part.Circle(App.Vector(25.7, 16.1, 0), App.Vector(0, 0, 1), 2.4), math.radians(0), math.radians(90)),  # 27
    Part.LineSegment(App.Vector(28.1, 16.1, 0), App.Vector(28.1, -16.1, 0)),  # 28
    Part.ArcOfCircle(Part.Circle(App.Vector(25.7, -16.1, 0), App.Vector(0, 0, 1), 2.4), math.radians(-90), math.radians(0)),  # 29
    Part.LineSegment(App.Vector(25.7, -18.5, 0), App.Vector(23.6, -18.5, 0)),  # 30
    Part.ArcOfCircle(Part.Circle(App.Vector(23.6, -23.6, 0), App.Vector(0, 0, 1), 5.1), math.radians(90), math.radians(180)),  # 31
    Part.LineSegment(App.Vector(18.5, -23.6, 0), App.Vector(18.5, -25.7, 0)),  # 32
    Part.ArcOfCircle(Part.Circle(App.Vector(16.1, -25.7, 0), App.Vector(0, 0, 1), 2.4), math.radians(-90), math.radians(0)),  # 33
    Part.LineSegment(App.Vector(16.1, -28.1, 0), App.Vector(-16.1, -28.1, 0)),  # 34
    Part.ArcOfCircle(Part.Circle(App.Vector(-16.1, -25.7, 0), App.Vector(0, 0, 1), 2.4), math.radians(180), math.radians(270)),  # 35
    Part.LineSegment(App.Vector(-18.5, -25.7, 0), App.Vector(-18.5, -23.6, 0)),  # 36
    Part.ArcOfCircle(Part.Circle(App.Vector(-23.6, -23.6, 0), App.Vector(0, 0, 1), 5.1), math.radians(0), math.radians(90)),  # 37
    Part.LineSegment(App.Vector(-23.6, -18.5, 0), App.Vector(-25.7, -18.5, 0)),  # 38
    Part.ArcOfCircle(Part.Circle(App.Vector(-25.7, -16.1, 0), App.Vector(0, 0, 1), 2.4), math.radians(180), math.radians(270)),  # 39
    Part.LineSegment(App.Vector(-28.1, -16.1, 0), App.Vector(-28.1, 16.1, 0)),  # 40
    Part.ArcOfCircle(Part.Circle(App.Vector(-25.7, 16.1, 0), App.Vector(0, 0, 1), 2.4), math.radians(90), math.radians(180)),  # 41
    Part.LineSegment(App.Vector(-25.7, 18.5, 0), App.Vector(-23.6, 18.5, 0)),  # 42
    Part.ArcOfCircle(Part.Circle(App.Vector(-23.6, 23.6, 0), App.Vector(0, 0, 1), 5.1), math.radians(-90), math.radians(0)),  # 43
    Part.LineSegment(App.Vector(-18.5, 23.6, 0), App.Vector(-18.5, 25.7, 0)),  # 44
    Part.ArcOfCircle(Part.Circle(App.Vector(-16.1, 25.7, 0), App.Vector(0, 0, 1), 2.4), math.radians(90), math.radians(180)),  # 45
    Part.LineSegment(App.Vector(-16.1, 28.1, 0), App.Vector(16.1, 28.1, 0)),  # 46
    Part.ArcOfCircle(Part.Circle(App.Vector(16.1, 25.7, 0), App.Vector(0, 0, 1), 2.4), math.radians(0), math.radians(90)),  # 47
], False)
sketch10.addConstraint([
    Sketcher.Constraint("Tangent", 0, 2, 1, 1),
    Sketcher.Constraint("Tangent", 1, 2, 2, 1),
    Sketcher.Constraint("Tangent", 2, 2, 3, 1),
    Sketcher.Constraint("Tangent", 3, 2, 4, 1),
    Sketcher.Constraint("Tangent", 4, 2, 5, 2),
    Sketcher.Constraint("Tangent", 5, 1, 6, 1),
    Sketcher.Constraint("Tangent", 6, 2, 7, 1),
    Sketcher.Constraint("Tangent", 7, 2, 8, 1),
    Sketcher.Constraint("Tangent", 8, 2, 9, 1),
    Sketcher.Constraint("Tangent", 9, 2, 10, 1),
    Sketcher.Constraint("Tangent", 10, 2, 11, 2),
    Sketcher.Constraint("Tangent", 11, 1, 12, 1),
    Sketcher.Constraint("Tangent", 12, 2, 13, 1),
    Sketcher.Constraint("Tangent", 13, 2, 14, 1),
    Sketcher.Constraint("Tangent", 14, 2, 15, 1),
    Sketcher.Constraint("Tangent", 15, 2, 16, 1),
    Sketcher.Constraint("Tangent", 16, 2, 17, 2),
    Sketcher.Constraint("Tangent", 17, 1, 18, 1),
    Sketcher.Constraint("Tangent", 18, 2, 19, 1),
    Sketcher.Constraint("Tangent", 19, 2, 20, 1),
    Sketcher.Constraint("Tangent", 20, 2, 21, 1),
    Sketcher.Constraint("Tangent", 21, 2, 22, 1),
    Sketcher.Constraint("Tangent", 22, 2, 23, 2),
    Sketcher.Constraint("Tangent", 23, 1, 0, 1),
    Sketcher.Constraint("Tangent", 24, 2, 25, 1),
    Sketcher.Constraint("Tangent", 25, 2, 26, 1),
    Sketcher.Constraint("Tangent", 26, 2, 27, 2),
    Sketcher.Constraint("Tangent", 27, 1, 28, 1),
    Sketcher.Constraint("Tangent", 28, 2, 29, 2),
    Sketcher.Constraint("Tangent", 29, 1, 30, 1),
    Sketcher.Constraint("Tangent", 30, 2, 31, 1),
    Sketcher.Constraint("Tangent", 31, 2, 32, 1),
    Sketcher.Constraint("Tangent", 32, 2, 33, 2),
    Sketcher.Constraint("Tangent", 33, 1, 34, 1),
    Sketcher.Constraint("Tangent", 34, 2, 35, 2),
    Sketcher.Constraint("Tangent", 35, 1, 36, 1),
    Sketcher.Constraint("Tangent", 36, 2, 37, 1),
    Sketcher.Constraint("Tangent", 37, 2, 38, 1),
    Sketcher.Constraint("Tangent", 38, 2, 39, 2),
    Sketcher.Constraint("Tangent", 39, 1, 40, 1),
    Sketcher.Constraint("Tangent", 40, 2, 41, 2),
    Sketcher.Constraint("Tangent", 41, 1, 42, 1),
    Sketcher.Constraint("Tangent", 42, 2, 43, 1),
    Sketcher.Constraint("Tangent", 43, 2, 44, 1),
    Sketcher.Constraint("Tangent", 44, 2, 45, 2),
    Sketcher.Constraint("Tangent", 45, 1, 46, 1),
    Sketcher.Constraint("Tangent", 46, 2, 47, 2),
    Sketcher.Constraint("Tangent", 47, 1, 24, 1),
    Sketcher.Constraint("Vertical", 0),
    Sketcher.Constraint("Horizontal", 2),
    Sketcher.Constraint("Vertical", 4),
    Sketcher.Constraint("Horizontal", 6),
    Sketcher.Constraint("Vertical", 8),
    Sketcher.Constraint("Horizontal", 10),
    Sketcher.Constraint("Vertical", 12),
    Sketcher.Constraint("Horizontal", 14),
    Sketcher.Constraint("Vertical", 16),
    Sketcher.Constraint("Horizontal", 18),
    Sketcher.Constraint("Vertical", 20),
    Sketcher.Constraint("Horizontal", 22),
    Sketcher.Constraint("Vertical", 24),
    Sketcher.Constraint("Horizontal", 26),
    Sketcher.Constraint("Vertical", 28),
    Sketcher.Constraint("Horizontal", 30),
    Sketcher.Constraint("Vertical", 32),
    Sketcher.Constraint("Horizontal", 34),
    Sketcher.Constraint("Vertical", 36),
    Sketcher.Constraint("Horizontal", 38),
    Sketcher.Constraint("Vertical", 40),
    Sketcher.Constraint("Horizontal", 42),
    Sketcher.Constraint("Vertical", 44),
    Sketcher.Constraint("Horizontal", 46),
    Sketcher.Constraint("Coincident", 25, 3, 23, 3),
    Sketcher.Constraint("Coincident", 27, 3, 21, 3),
    Sketcher.Constraint("Coincident", 29, 3, 19, 3),
    Sketcher.Constraint("Coincident", 31, 3, 17, 3),
    Sketcher.Constraint("Coincident", 33, 3, 15, 3),
    Sketcher.Constraint("Coincident", 35, 3, 13, 3),
    Sketcher.Constraint("Coincident", 37, 3, 11, 3),
    Sketcher.Constraint("Coincident", 39, 3, 9, 3),
    Sketcher.Constraint("Coincident", 41, 3, 7, 3),
    Sketcher.Constraint("Coincident", 43, 3, 5, 3),
    Sketcher.Constraint("Coincident", 45, 3, 3, 3),
    Sketcher.Constraint("Equal", 1, 3),
    Sketcher.Constraint("Equal", 3, 7),
    Sketcher.Constraint("Equal", 7, 9),
    Sketcher.Constraint("Equal", 5, 11),
    Sketcher.Constraint("Equal", 9, 13),
    Sketcher.Constraint("Equal", 13, 15),
    Sketcher.Constraint("Equal", 11, 17),
    Sketcher.Constraint("Equal", 15, 19),
    Sketcher.Constraint("Equal", 19, 21),
    Sketcher.Constraint("Equal", 17, 23),
    Sketcher.Constraint("Equal", 45, 47),
    Sketcher.Constraint("Symmetric", 1, 3, 13, 3, -1, 1),
    Sketcher.Constraint("Symmetric", 5, 3, 17, 3, -1, 1),
    Sketcher.Constraint("Symmetric", 9, 3, 21, 3, -1, 1),
    Sketcher.Constraint("Symmetric", 11, 3, 17, 3, -2),
    Sketcher.Constraint("Equal", 42, 0),
    Sketcher.Constraint("Equal", 46, 8),
    Sketcher.Constraint("Radius", 5, Q("5 mm")),
    Sketcher.Constraint("Radius", 1, Q("2.5 mm")),
    Sketcher.Constraint("Radius", 25, Q("5.1 mm")),
    Sketcher.Constraint("DistanceX", 2, 2, 2, 1, Q("32.14 mm")),
    Sketcher.Constraint("DistanceX", 6, 2, 6, 1, Q("2.13 mm")),
])
pocket6 = body.newObject("PartDesign::Pocket", "Pocket005")
pocket6.Profile = sketch10
pocket6.Length = 34
pocket6.Midplane = True

doc.recompute()
